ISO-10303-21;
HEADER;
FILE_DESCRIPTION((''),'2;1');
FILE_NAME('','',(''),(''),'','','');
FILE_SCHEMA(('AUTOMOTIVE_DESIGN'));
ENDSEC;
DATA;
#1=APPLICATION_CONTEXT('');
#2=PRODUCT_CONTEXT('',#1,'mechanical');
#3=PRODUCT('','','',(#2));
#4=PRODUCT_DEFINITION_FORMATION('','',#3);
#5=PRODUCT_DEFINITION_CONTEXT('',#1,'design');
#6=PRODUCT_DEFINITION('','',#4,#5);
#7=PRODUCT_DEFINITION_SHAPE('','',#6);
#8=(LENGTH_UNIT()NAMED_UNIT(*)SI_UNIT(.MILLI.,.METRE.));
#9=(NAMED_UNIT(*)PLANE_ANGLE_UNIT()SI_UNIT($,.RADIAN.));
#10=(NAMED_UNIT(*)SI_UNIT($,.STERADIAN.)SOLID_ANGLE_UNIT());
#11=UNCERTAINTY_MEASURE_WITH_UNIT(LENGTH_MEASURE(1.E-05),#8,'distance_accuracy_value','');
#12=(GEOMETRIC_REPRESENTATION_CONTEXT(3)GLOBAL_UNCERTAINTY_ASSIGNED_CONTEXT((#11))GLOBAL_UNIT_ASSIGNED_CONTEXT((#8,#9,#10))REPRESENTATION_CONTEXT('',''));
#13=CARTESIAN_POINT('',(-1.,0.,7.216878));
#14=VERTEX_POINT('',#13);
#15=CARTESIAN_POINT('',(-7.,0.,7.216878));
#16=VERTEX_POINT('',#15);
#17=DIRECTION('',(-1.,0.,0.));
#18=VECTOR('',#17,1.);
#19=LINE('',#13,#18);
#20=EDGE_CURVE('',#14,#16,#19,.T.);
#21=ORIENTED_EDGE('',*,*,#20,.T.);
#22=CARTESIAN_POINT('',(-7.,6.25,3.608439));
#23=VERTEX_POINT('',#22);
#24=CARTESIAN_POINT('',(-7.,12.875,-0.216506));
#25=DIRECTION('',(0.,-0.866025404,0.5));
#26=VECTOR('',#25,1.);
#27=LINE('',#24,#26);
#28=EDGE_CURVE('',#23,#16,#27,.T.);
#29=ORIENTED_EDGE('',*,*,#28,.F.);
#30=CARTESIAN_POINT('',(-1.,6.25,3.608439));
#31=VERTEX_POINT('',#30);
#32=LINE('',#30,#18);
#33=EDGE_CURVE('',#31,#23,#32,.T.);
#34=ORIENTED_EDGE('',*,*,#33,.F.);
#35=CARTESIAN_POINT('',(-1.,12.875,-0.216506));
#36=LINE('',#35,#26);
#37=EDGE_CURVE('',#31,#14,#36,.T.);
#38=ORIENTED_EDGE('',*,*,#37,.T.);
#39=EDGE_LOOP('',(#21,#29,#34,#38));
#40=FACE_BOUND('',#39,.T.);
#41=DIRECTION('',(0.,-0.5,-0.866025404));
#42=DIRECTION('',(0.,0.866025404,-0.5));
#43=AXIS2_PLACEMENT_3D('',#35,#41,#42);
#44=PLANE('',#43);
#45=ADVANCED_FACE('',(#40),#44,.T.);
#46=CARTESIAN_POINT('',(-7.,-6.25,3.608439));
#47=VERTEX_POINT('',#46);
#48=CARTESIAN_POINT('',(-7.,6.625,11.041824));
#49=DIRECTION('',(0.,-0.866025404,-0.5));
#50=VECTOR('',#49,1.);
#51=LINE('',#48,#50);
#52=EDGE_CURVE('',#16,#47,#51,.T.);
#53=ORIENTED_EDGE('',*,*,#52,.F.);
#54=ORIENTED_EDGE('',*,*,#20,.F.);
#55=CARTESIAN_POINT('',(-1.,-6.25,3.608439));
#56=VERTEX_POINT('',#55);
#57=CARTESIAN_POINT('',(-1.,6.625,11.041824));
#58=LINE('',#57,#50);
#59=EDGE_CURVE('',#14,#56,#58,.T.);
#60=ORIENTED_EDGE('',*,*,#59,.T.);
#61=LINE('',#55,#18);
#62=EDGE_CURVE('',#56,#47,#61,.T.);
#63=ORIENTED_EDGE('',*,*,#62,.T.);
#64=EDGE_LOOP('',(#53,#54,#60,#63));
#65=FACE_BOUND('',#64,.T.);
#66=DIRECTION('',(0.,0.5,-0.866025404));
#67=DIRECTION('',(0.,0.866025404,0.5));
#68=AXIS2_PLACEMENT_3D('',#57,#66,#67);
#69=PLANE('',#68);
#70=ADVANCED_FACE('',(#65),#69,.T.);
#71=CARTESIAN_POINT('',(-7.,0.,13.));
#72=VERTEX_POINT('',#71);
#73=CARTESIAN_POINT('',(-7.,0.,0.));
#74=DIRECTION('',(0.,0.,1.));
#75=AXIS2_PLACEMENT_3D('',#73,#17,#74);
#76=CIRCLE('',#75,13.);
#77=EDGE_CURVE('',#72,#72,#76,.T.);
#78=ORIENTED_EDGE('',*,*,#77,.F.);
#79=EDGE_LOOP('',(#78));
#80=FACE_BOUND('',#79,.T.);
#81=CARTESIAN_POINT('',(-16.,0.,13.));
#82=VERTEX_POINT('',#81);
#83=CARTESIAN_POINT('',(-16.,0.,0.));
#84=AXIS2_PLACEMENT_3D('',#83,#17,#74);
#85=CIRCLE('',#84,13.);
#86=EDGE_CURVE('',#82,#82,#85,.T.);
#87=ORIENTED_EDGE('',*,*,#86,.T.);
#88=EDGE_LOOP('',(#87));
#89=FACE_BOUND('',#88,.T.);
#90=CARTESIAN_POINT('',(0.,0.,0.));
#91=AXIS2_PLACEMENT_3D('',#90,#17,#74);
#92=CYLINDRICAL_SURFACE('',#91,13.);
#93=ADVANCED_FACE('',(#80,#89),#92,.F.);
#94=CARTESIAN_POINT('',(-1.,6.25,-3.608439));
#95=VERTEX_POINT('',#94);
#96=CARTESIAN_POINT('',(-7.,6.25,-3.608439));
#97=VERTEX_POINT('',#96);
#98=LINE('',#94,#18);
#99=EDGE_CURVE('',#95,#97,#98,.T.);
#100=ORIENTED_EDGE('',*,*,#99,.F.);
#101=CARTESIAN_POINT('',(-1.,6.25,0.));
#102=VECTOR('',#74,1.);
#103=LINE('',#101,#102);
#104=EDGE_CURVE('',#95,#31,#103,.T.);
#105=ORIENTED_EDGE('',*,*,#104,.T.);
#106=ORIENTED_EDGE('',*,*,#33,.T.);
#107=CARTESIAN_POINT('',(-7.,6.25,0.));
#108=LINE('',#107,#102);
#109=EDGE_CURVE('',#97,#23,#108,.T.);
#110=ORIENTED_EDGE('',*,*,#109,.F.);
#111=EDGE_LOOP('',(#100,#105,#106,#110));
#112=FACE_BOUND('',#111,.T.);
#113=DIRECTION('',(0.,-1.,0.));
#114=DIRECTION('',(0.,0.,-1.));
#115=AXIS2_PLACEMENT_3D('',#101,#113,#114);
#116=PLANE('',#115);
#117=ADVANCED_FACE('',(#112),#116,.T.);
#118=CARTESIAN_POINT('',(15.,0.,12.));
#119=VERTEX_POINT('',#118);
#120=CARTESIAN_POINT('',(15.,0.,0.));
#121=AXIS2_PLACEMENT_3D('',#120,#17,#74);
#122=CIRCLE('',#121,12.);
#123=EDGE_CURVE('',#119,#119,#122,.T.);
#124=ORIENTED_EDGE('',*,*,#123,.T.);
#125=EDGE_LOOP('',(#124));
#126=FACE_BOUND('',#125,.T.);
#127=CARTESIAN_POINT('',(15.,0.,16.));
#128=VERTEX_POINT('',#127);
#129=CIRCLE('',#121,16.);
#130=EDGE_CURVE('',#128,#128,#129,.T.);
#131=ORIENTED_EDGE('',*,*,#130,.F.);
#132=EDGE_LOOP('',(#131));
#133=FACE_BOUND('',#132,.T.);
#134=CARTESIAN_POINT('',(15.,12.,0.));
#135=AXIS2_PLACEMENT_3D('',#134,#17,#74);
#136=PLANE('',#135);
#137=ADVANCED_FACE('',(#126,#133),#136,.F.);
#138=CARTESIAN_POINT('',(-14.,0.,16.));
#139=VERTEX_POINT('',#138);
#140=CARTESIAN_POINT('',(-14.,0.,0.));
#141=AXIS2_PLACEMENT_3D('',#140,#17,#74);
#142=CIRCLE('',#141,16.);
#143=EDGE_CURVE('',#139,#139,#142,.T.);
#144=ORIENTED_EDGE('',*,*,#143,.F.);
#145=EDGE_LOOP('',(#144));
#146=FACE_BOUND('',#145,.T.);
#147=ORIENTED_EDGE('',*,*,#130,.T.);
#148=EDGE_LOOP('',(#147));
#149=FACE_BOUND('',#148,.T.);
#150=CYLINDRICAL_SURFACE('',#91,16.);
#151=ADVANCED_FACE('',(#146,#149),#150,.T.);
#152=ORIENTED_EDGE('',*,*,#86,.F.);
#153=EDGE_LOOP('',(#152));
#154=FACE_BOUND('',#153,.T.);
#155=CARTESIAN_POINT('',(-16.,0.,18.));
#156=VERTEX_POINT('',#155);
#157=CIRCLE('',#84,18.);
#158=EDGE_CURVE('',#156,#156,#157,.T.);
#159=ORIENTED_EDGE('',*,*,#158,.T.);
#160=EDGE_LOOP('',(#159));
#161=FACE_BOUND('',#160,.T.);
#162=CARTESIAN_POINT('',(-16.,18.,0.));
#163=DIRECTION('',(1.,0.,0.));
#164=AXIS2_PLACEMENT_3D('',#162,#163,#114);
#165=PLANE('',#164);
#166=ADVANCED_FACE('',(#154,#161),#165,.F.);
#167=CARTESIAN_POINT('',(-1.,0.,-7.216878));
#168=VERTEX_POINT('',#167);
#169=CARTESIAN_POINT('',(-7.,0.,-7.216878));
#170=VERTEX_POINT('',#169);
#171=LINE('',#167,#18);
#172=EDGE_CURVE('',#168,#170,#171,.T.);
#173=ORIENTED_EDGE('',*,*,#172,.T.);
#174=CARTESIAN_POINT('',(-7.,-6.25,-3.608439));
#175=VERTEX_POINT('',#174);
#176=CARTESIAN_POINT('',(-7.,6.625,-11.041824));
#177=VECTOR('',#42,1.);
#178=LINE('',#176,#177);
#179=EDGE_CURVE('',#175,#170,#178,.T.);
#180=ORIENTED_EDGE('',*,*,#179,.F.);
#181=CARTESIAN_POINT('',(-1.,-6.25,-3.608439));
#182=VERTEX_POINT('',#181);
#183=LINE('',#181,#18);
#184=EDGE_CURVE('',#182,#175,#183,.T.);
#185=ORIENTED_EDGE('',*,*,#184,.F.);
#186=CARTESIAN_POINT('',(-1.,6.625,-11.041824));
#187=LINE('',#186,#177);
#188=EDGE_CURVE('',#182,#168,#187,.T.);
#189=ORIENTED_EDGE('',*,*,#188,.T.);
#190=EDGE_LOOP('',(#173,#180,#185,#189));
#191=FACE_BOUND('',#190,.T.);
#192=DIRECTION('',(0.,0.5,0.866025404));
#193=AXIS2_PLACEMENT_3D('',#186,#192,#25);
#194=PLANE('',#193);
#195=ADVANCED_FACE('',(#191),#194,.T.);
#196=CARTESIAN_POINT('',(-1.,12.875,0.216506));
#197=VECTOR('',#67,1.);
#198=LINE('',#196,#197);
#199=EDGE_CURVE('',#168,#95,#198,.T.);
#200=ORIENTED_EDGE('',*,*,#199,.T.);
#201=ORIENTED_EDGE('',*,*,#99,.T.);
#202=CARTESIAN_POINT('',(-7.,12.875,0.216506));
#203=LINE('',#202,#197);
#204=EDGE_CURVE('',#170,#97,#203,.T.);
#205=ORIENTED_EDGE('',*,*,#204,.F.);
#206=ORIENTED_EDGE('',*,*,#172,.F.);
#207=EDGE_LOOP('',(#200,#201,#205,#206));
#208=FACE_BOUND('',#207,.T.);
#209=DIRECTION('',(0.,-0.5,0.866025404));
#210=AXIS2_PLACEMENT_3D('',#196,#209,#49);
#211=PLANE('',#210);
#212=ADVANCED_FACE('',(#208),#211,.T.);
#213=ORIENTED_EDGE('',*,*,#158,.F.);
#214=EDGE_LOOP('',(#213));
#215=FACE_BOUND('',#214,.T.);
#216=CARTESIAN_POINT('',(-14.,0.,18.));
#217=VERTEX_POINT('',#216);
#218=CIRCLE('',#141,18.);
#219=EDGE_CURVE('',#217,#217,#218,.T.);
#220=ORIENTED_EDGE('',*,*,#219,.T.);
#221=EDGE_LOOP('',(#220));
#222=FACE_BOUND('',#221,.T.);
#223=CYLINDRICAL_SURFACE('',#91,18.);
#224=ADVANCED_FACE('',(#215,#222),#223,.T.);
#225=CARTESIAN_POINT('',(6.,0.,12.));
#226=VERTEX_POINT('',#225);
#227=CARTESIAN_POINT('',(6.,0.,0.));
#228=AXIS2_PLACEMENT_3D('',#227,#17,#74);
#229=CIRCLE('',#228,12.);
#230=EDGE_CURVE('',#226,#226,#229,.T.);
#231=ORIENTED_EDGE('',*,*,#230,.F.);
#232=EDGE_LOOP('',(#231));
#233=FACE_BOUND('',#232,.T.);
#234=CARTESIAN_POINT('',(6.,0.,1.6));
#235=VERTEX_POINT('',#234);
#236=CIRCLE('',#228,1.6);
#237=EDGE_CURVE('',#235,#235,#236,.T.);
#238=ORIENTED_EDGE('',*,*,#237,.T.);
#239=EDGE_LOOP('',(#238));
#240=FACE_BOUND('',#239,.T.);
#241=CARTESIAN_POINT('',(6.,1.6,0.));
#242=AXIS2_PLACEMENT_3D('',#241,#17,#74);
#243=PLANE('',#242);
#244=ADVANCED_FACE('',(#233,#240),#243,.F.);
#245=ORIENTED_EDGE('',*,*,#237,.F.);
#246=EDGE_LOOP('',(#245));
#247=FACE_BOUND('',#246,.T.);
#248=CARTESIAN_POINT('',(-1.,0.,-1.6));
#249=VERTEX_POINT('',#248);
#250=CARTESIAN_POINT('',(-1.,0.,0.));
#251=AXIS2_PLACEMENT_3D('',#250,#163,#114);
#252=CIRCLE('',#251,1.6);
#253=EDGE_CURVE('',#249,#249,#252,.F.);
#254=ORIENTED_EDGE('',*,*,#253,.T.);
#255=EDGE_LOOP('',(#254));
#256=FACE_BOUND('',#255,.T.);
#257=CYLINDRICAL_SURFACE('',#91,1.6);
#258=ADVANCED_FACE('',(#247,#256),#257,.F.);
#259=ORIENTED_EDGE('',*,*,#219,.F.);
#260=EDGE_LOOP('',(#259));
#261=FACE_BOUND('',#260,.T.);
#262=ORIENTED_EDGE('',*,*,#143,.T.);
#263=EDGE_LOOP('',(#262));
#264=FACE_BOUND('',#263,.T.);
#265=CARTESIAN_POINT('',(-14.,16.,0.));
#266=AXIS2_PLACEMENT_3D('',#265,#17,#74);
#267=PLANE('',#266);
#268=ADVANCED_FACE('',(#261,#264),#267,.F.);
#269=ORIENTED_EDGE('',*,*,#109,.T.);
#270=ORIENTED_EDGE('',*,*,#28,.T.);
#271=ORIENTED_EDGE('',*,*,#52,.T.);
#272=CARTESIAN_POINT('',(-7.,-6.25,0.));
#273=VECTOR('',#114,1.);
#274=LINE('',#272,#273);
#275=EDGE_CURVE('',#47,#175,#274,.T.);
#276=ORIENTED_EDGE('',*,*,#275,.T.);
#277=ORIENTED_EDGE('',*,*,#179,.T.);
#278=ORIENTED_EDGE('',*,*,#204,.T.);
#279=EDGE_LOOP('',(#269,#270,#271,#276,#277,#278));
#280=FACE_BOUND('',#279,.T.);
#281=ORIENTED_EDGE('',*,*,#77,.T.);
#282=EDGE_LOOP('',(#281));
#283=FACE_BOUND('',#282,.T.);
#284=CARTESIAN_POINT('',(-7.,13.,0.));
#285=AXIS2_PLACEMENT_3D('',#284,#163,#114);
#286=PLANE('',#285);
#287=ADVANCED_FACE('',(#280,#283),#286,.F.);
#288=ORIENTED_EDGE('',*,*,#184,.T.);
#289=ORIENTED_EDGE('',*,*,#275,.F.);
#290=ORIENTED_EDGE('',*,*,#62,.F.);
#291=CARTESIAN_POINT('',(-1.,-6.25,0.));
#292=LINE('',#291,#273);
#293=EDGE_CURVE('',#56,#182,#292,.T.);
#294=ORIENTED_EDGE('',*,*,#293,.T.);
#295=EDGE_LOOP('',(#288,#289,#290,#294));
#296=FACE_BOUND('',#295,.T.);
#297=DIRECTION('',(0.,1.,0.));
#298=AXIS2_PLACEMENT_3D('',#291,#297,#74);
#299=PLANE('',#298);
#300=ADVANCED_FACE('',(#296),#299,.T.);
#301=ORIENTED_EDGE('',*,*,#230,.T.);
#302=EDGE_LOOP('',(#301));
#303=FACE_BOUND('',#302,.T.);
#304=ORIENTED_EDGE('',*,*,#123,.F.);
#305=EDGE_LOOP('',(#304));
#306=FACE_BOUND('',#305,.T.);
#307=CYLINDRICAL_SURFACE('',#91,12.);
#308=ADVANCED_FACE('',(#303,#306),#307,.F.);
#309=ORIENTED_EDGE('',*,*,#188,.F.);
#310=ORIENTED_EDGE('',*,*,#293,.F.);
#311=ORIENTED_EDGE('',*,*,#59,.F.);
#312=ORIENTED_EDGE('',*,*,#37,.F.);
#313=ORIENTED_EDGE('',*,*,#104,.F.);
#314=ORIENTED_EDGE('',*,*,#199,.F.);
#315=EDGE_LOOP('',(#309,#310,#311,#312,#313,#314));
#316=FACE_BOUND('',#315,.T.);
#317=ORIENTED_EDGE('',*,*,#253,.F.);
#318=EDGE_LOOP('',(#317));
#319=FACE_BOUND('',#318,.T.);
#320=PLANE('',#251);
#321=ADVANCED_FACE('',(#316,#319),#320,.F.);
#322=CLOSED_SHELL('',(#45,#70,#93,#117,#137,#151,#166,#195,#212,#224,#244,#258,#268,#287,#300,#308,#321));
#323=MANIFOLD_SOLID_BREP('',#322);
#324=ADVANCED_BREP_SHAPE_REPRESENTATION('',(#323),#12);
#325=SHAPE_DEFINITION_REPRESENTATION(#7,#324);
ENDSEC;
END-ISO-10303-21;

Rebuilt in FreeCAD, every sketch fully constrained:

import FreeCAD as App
import Part
import Sketcher
Q = App.Units.Quantity


def add_polygon(sketch, points):
    """Adds a closed chain of lines whose ends are joined by coincident constraints."""
    first, n = sketch.GeometryCount, len(points)
    for a, b in zip(points, points[1:] + points[:1]):
        sketch.addGeometry(Part.LineSegment(App.Vector(*a, 0), App.Vector(*b, 0)), False)
    for i in range(n):
        sketch.addConstraint(Sketcher.Constraint("Coincident", first + i, 2, first + (i + 1) % n, 1))

doc = App.newDocument("Part")
body = doc.addObject("PartDesign::Body", "Body")

sketch1 = doc.addObject("Sketcher::SketchObject", "Sketch")
body.addObject(sketch1)
sketch1.AttachmentSupport = (doc.XY_Plane, [""])
sketch1.MapMode = "FlatFace"
add_polygon(sketch1, [(-7, 1.6), (6, 1.6), (6, 12), (15, 12), (15, 16), (-14, 16), (-14, 18), (-16, 18), (-16, 13), (-7, 13)])
sketch1.addConstraint([
    Sketcher.Constraint("Horizontal", 0),
    Sketcher.Constraint("Vertical", 1),
    Sketcher.Constraint("Horizontal", 2),
    Sketcher.Constraint("Vertical", 3),
    Sketcher.Constraint("Horizontal", 4),
    Sketcher.Constraint("Vertical", 5),
    Sketcher.Constraint("Horizontal", 6),
    Sketcher.Constraint("Vertical", 7),
    Sketcher.Constraint("Horizontal", 8),
    Sketcher.Constraint("Vertical", 9),
    Sketcher.Constraint("Equal", 2, 8),
    Sketcher.Constraint("Equal", 6, 5),
    Sketcher.Constraint("DistanceX", 0, 1, 0, 2, 13.0),
    Sketcher.Constraint("DistanceX", 2, 1, 2, 2, 9.0),
    Sketcher.Constraint("DistanceX", 4, 2, 4, 1, 29.0),
    Sketcher.Constraint("DistanceY", 3, 1, 3, 2, 4.0),
    Sketcher.Constraint("DistanceY", 7, 2, 7, 1, 5.0),
    Sketcher.Constraint("DistanceY", 1, 1, 1, 2, 10.4),
    Sketcher.Constraint("DistanceX", -1, 1, 0, 2, 6.0),
    Sketcher.Constraint("DistanceY", -1, 1, 1, 2, 12.0),
])
revolution = doc.addObject("PartDesign::Revolution", "Revolution")
body.addObject(revolution)
revolution.Profile = sketch1
revolution.ReferenceAxis = (sketch1, ["H_Axis"])
revolution.Angle = 360

sketch2 = doc.addObject("Sketcher::SketchObject", "Sketch001")
body.addObject(sketch2)
sketch2.AttachmentSupport = (doc.YZ_Plane, [""])
sketch2.MapMode = "FlatFace"
sketch2.AttachmentOffset = App.Placement(App.Vector(0, 0, -7), App.Rotation())
add_polygon(sketch2, [(6, -4), (6, 4), (0, 7), (-6, 4), (-6, -4), (0, -7)])
sketch2.addConstraint([
    Sketcher.Constraint("Vertical", 0),
    Sketcher.Constraint("Vertical", 3),
    Sketcher.Constraint("Symmetric", 0, 2, 3, 2, -1, 1),
    Sketcher.Constraint("Symmetric", 1, 2, 4, 2, -1, 1),
    Sketcher.Constraint("PointOnObject", 1, 2, -2),
    Sketcher.Constraint("Parallel", 2, 5),
    Sketcher.Constraint("Horizontal", 0, 2, 2, 2),
    Sketcher.Constraint("Angle", 1, Q("150 deg")),
    Sketcher.Constraint("DistanceX", 2, 2, 0, 2, 12.5),
    Sketcher.Constraint("DistanceY", 0, 1, 0, 2, 7.216878),
])
pocket1 = doc.addObject("PartDesign::Pocket", "Pocket")
body.addObject(pocket1)
pocket1.Profile = sketch2
pocket1.Length = 6
pocket1.Reversed = True

doc.recompute()
